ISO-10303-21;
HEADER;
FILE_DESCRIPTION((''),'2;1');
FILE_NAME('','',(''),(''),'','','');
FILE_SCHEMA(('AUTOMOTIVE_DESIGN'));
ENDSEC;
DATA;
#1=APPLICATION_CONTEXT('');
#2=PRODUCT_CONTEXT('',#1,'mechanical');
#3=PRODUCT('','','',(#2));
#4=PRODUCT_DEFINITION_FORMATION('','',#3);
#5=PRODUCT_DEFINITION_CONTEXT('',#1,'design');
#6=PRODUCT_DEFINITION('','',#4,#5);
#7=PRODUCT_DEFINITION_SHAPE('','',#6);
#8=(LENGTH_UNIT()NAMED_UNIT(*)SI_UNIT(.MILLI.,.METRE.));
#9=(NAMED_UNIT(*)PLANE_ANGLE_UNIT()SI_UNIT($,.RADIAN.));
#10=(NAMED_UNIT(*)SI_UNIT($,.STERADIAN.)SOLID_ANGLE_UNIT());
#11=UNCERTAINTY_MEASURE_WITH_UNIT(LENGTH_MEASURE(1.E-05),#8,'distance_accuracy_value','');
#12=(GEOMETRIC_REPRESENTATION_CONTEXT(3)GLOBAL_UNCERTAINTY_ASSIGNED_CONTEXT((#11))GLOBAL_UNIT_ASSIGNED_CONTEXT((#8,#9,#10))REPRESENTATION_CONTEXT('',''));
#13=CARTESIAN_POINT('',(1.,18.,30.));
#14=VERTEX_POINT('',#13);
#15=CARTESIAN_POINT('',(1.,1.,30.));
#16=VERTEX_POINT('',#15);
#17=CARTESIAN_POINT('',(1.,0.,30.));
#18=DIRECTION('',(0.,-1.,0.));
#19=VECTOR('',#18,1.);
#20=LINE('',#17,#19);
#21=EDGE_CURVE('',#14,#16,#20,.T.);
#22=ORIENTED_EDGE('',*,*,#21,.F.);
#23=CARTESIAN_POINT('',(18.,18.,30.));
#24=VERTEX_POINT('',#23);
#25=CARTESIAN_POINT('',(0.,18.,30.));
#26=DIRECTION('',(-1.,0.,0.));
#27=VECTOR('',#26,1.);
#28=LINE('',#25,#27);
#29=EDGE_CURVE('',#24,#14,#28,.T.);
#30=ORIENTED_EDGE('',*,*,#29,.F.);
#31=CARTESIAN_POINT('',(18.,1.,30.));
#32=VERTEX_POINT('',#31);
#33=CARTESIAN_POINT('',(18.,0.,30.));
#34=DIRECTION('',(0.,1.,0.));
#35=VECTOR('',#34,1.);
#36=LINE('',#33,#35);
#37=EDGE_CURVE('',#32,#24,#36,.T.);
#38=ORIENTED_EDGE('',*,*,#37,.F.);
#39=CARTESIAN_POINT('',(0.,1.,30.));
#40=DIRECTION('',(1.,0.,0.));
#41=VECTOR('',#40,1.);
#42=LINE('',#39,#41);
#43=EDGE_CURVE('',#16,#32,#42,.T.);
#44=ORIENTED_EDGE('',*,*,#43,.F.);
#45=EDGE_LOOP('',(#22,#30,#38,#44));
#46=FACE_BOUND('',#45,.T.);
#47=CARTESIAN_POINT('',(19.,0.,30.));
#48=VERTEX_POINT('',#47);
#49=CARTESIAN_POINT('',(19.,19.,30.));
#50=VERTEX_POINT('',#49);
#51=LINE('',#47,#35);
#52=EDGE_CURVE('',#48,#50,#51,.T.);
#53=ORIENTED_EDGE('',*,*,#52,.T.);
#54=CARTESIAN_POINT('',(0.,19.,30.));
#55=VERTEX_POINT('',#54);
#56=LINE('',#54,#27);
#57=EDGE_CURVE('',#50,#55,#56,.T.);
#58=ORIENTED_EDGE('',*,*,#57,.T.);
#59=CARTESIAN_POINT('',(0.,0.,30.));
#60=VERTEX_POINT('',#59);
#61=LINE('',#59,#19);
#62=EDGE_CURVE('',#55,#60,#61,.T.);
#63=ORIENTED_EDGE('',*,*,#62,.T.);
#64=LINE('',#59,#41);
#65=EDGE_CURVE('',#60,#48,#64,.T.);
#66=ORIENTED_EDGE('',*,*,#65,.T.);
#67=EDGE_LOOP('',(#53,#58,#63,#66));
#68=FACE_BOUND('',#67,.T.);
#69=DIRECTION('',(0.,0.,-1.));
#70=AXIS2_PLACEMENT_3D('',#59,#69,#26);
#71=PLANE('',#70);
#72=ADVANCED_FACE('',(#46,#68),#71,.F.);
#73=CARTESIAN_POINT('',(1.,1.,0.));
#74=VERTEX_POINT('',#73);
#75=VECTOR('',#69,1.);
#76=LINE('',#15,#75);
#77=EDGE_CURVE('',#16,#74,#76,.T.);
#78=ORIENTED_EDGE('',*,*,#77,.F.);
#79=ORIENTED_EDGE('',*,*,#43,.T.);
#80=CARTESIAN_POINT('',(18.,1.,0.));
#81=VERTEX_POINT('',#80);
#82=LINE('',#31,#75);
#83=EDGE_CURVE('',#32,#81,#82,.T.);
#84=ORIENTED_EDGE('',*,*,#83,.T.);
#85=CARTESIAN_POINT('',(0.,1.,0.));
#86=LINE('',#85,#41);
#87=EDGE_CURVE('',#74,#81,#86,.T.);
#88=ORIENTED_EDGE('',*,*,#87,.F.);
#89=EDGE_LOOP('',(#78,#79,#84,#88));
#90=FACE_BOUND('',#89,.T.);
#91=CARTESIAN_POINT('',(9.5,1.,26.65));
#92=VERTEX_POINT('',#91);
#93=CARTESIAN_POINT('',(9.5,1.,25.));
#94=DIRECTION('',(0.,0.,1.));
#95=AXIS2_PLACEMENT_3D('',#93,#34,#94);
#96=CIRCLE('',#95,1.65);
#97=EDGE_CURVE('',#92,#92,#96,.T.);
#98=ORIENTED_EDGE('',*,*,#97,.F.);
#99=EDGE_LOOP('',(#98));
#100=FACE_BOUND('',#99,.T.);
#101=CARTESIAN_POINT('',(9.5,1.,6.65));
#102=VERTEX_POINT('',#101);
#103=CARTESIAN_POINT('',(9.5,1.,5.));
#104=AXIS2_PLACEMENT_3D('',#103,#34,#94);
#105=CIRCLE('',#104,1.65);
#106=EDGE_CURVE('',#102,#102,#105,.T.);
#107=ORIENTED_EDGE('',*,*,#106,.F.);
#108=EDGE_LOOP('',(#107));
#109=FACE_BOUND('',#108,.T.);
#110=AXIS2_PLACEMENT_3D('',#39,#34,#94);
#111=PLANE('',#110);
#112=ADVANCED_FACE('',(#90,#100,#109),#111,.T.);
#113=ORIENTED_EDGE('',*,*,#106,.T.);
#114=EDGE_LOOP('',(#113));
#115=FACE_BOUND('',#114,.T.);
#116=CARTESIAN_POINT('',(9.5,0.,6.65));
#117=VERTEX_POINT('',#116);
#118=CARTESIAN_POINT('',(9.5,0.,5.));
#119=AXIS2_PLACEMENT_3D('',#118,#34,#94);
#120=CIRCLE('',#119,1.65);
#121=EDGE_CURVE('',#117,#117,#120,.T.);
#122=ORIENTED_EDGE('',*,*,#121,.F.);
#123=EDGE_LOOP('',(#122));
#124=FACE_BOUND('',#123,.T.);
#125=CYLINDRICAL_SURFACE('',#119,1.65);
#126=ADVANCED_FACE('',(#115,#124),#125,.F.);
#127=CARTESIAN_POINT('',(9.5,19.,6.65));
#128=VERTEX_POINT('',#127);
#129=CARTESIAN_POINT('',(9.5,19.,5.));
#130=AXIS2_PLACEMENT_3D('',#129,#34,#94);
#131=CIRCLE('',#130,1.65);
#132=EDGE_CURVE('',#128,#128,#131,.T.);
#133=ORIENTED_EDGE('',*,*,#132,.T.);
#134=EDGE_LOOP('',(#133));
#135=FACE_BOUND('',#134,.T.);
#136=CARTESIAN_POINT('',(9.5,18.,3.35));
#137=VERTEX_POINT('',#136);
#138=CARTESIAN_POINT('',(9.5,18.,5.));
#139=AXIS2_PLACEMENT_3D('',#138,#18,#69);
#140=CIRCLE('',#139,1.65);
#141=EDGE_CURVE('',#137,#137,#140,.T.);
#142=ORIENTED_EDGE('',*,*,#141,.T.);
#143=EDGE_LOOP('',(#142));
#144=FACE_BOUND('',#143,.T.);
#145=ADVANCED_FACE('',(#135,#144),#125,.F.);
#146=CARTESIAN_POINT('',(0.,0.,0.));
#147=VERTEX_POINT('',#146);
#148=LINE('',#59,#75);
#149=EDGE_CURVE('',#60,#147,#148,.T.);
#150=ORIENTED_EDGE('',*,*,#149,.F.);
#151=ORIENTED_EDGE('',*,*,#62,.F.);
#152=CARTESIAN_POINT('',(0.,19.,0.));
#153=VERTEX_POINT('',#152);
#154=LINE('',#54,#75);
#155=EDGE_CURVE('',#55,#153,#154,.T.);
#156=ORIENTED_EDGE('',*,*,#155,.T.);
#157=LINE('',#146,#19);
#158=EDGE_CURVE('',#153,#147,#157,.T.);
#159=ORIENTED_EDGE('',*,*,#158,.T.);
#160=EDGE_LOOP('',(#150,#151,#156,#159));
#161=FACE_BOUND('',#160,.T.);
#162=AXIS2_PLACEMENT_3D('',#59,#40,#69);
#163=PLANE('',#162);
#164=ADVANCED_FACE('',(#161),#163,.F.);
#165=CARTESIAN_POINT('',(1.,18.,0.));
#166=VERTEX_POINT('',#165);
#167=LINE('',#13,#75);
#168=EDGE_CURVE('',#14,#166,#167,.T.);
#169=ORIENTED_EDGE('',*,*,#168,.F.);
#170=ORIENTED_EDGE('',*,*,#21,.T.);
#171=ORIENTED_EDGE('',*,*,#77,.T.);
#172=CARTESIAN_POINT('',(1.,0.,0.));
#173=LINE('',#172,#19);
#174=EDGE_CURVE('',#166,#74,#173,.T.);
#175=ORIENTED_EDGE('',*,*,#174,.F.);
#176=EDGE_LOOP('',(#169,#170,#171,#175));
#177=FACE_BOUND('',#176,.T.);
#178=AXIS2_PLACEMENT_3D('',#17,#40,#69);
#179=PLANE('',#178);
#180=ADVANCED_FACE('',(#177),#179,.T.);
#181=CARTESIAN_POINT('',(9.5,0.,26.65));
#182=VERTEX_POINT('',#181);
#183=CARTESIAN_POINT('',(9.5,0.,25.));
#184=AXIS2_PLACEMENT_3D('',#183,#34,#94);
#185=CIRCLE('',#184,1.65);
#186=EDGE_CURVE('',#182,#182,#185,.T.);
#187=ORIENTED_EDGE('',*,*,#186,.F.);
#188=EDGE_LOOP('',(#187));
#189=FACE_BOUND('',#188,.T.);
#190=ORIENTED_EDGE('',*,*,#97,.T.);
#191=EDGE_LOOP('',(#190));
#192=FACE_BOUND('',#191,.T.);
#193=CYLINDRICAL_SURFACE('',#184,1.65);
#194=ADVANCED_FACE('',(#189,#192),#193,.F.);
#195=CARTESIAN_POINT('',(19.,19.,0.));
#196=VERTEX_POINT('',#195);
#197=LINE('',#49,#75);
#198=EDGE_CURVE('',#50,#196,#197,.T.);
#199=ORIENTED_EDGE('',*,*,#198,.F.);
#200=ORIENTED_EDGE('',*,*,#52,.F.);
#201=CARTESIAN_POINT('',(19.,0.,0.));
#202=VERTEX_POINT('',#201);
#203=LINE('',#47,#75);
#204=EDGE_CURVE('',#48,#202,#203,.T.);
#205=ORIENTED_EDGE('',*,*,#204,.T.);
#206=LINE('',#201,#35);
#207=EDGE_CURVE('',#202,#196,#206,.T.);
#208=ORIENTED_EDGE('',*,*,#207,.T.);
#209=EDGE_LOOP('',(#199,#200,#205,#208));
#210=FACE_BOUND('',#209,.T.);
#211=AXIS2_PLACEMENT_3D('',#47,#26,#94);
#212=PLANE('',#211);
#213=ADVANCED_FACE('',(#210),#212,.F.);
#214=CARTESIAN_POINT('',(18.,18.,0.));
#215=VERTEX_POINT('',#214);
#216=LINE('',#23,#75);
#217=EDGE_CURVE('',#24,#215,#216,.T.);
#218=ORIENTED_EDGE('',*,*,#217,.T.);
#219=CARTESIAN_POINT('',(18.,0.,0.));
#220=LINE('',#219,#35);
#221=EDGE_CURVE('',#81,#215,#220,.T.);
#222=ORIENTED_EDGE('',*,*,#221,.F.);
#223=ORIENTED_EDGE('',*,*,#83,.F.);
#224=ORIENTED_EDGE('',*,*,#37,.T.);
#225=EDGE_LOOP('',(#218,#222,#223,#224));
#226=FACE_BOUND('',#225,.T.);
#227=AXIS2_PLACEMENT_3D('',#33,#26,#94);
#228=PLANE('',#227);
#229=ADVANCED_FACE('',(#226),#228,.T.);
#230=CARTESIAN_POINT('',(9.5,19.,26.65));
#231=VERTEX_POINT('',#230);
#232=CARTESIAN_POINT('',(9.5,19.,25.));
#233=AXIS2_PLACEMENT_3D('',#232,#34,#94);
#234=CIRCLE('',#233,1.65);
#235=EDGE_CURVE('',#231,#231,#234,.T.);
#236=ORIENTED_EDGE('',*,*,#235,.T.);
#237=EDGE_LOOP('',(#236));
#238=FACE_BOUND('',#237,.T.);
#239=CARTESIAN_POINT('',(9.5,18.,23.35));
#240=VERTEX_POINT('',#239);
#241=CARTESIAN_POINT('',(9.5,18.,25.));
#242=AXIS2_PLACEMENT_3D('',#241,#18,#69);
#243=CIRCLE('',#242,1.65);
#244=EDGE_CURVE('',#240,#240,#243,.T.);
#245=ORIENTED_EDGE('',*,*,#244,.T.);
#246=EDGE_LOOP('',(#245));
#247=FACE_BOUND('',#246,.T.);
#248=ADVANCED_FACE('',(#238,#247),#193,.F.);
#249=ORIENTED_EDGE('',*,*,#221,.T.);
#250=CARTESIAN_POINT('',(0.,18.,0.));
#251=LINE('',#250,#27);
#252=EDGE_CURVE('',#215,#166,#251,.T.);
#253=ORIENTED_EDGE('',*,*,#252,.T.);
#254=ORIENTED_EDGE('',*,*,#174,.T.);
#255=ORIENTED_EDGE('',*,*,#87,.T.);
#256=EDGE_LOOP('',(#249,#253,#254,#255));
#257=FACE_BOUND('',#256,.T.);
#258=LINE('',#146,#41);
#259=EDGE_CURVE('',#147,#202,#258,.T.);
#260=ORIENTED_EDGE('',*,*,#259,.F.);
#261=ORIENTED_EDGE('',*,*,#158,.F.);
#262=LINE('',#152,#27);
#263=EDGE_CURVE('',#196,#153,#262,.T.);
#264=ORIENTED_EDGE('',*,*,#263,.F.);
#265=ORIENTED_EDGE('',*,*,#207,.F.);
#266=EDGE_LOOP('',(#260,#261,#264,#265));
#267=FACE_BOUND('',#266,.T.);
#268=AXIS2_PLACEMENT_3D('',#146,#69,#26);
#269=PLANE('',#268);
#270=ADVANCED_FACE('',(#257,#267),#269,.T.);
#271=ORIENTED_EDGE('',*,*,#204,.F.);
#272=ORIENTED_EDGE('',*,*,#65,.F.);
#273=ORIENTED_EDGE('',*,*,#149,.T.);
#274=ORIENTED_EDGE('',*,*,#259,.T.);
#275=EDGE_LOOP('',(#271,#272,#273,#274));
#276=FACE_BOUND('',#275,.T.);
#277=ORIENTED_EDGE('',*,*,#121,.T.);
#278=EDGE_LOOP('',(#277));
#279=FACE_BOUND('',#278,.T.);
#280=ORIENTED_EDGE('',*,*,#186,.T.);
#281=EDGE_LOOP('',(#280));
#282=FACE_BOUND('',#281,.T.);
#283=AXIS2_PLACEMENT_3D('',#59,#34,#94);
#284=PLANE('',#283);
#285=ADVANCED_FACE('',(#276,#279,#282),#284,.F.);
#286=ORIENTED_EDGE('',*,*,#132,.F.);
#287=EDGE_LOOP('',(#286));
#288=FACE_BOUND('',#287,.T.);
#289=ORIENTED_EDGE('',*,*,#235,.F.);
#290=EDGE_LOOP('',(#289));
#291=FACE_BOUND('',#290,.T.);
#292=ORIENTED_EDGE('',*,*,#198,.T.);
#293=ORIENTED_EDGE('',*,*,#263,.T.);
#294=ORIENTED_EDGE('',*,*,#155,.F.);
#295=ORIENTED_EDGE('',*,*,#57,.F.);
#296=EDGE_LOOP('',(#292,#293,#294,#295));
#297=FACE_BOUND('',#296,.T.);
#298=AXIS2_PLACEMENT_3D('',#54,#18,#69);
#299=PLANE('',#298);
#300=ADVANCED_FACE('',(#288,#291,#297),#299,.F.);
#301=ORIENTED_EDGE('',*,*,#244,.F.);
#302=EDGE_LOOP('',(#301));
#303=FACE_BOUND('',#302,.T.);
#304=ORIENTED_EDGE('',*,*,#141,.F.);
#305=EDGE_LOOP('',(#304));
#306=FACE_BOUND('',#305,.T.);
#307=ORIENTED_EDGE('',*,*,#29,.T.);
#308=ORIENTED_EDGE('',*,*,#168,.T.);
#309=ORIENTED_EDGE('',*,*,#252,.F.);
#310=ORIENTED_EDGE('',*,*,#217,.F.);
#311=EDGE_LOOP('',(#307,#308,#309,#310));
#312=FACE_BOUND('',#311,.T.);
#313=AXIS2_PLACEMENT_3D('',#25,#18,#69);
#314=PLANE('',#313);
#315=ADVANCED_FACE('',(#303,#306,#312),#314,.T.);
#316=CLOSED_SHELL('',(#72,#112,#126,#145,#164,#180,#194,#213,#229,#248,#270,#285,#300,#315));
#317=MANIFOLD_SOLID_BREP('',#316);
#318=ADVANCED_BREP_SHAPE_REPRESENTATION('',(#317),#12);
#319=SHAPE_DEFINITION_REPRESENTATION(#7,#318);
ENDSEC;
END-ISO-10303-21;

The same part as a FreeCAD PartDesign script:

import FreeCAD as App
import Part
import Sketcher
from FreeCAD import Vector
Q = App.Units.Quantity


def faces_at(feature, points):
    """Names of the faces that lie closest to the given points."""
    faces = feature.Shape.Faces
    near = lambda p: min(range(len(faces)), key=lambda i: faces[i].distToShape(Part.Vertex(*p))[0])
    return sorted({f"Face{near(p) + 1}" for p in points})

doc = App.newDocument("Part")
body = doc.addObject("PartDesign::Body", "Body")

# Sketch on XY plane
sketch1 = doc.addObject("Sketcher::SketchObject", "Sketch")
body.addObject(sketch1)
sketch1.AttachmentSupport = (doc.XY_Plane, [""])
sketch1.MapMode = "FlatFace"
sketch1.addGeometry([
    Part.LineSegment(Vector(0, 19, 0), Vector(0, 0, 0)),
    Part.LineSegment(Vector(0, 0, 0), Vector(19, 0, 0)),
    Part.LineSegment(Vector(19, 0, 0), Vector(19, 19, 0)),
    Part.LineSegment(Vector(19, 19, 0), Vector(0, 19, 0)),
], False)
sketch1.addConstraint([
    Sketcher.Constraint("Coincident", 0, 2, 1, 1),
    Sketcher.Constraint("Coincident", 1, 2, 2, 1),
    Sketcher.Constraint("Coincident", 2, 2, 3, 1),
    Sketcher.Constraint("Coincident", 3, 2, 0, 1),
    Sketcher.Constraint("Vertical", 0),
    Sketcher.Constraint("Horizontal", 1),
    Sketcher.Constraint("Vertical", 2),
    Sketcher.Constraint("Horizontal", 3),
    Sketcher.Constraint("Coincident", 0, 2, -1, 1),
    Sketcher.Constraint("Equal", 3, 0),
    Sketcher.Constraint("DistanceX", 1, 1, 1, 2, Q("19 mm")),
])
pad1 = doc.addObject("PartDesign::Pad", "Pad")
body.addObject(pad1)
pad1.Profile = sketch1
pad1.Length = 30
doc.recompute()

thickness = doc.addObject("PartDesign::Thickness", "Thickness")
body.addObject(thickness)
thickness.Base = (pad1, faces_at(pad1, [(9.5, 9.5, 30), (9.5, 9.5, 0)]))
thickness.Value = 1
thickness.Reversed = True
thickness.Join = "Intersection"

# Sketch on XZ plane
sketch2 = doc.addObject("Sketcher::SketchObject", "Sketch001")
body.addObject(sketch2)
sketch2.AttachmentSupport = (doc.XZ_Plane, [""])
sketch2.MapMode = "FlatFace"
sketch2.AttachmentOffset = App.Placement(Vector(0, 0, -19), App.Rotation())
sketch2.addGeometry([
    Part.Circle(Vector(9.5, 25, 0), Vector(0, 0, 1), 1.65),
    Part.Circle(Vector(9.5, 5, 0), Vector(0, 0, 1), 1.65),
], False)
sketch2.addConstraint([
    Sketcher.Constraint("Equal", 0, 1),
    Sketcher.Constraint("Vertical", 0, 3, 1, 3),
    Sketcher.Constraint("Diameter", 0, Q("3.3 mm")),
    Sketcher.Constraint("DistanceY", -1, 1, 0, 3, Q("25 mm")),
    Sketcher.Constraint("DistanceY", -1, 1, 1, 3, Q("5 mm")),
    Sketcher.Constraint("DistanceX", -1, 1, 0, 3, Q("9.5 mm")),
])
pocket1 = doc.addObject("PartDesign::Pocket", "Pocket")
body.addObject(pocket1)
pocket1.Profile = sketch2
pocket1.Type = "ThroughAll"
pocket1.Reversed = True

doc.recompute()
